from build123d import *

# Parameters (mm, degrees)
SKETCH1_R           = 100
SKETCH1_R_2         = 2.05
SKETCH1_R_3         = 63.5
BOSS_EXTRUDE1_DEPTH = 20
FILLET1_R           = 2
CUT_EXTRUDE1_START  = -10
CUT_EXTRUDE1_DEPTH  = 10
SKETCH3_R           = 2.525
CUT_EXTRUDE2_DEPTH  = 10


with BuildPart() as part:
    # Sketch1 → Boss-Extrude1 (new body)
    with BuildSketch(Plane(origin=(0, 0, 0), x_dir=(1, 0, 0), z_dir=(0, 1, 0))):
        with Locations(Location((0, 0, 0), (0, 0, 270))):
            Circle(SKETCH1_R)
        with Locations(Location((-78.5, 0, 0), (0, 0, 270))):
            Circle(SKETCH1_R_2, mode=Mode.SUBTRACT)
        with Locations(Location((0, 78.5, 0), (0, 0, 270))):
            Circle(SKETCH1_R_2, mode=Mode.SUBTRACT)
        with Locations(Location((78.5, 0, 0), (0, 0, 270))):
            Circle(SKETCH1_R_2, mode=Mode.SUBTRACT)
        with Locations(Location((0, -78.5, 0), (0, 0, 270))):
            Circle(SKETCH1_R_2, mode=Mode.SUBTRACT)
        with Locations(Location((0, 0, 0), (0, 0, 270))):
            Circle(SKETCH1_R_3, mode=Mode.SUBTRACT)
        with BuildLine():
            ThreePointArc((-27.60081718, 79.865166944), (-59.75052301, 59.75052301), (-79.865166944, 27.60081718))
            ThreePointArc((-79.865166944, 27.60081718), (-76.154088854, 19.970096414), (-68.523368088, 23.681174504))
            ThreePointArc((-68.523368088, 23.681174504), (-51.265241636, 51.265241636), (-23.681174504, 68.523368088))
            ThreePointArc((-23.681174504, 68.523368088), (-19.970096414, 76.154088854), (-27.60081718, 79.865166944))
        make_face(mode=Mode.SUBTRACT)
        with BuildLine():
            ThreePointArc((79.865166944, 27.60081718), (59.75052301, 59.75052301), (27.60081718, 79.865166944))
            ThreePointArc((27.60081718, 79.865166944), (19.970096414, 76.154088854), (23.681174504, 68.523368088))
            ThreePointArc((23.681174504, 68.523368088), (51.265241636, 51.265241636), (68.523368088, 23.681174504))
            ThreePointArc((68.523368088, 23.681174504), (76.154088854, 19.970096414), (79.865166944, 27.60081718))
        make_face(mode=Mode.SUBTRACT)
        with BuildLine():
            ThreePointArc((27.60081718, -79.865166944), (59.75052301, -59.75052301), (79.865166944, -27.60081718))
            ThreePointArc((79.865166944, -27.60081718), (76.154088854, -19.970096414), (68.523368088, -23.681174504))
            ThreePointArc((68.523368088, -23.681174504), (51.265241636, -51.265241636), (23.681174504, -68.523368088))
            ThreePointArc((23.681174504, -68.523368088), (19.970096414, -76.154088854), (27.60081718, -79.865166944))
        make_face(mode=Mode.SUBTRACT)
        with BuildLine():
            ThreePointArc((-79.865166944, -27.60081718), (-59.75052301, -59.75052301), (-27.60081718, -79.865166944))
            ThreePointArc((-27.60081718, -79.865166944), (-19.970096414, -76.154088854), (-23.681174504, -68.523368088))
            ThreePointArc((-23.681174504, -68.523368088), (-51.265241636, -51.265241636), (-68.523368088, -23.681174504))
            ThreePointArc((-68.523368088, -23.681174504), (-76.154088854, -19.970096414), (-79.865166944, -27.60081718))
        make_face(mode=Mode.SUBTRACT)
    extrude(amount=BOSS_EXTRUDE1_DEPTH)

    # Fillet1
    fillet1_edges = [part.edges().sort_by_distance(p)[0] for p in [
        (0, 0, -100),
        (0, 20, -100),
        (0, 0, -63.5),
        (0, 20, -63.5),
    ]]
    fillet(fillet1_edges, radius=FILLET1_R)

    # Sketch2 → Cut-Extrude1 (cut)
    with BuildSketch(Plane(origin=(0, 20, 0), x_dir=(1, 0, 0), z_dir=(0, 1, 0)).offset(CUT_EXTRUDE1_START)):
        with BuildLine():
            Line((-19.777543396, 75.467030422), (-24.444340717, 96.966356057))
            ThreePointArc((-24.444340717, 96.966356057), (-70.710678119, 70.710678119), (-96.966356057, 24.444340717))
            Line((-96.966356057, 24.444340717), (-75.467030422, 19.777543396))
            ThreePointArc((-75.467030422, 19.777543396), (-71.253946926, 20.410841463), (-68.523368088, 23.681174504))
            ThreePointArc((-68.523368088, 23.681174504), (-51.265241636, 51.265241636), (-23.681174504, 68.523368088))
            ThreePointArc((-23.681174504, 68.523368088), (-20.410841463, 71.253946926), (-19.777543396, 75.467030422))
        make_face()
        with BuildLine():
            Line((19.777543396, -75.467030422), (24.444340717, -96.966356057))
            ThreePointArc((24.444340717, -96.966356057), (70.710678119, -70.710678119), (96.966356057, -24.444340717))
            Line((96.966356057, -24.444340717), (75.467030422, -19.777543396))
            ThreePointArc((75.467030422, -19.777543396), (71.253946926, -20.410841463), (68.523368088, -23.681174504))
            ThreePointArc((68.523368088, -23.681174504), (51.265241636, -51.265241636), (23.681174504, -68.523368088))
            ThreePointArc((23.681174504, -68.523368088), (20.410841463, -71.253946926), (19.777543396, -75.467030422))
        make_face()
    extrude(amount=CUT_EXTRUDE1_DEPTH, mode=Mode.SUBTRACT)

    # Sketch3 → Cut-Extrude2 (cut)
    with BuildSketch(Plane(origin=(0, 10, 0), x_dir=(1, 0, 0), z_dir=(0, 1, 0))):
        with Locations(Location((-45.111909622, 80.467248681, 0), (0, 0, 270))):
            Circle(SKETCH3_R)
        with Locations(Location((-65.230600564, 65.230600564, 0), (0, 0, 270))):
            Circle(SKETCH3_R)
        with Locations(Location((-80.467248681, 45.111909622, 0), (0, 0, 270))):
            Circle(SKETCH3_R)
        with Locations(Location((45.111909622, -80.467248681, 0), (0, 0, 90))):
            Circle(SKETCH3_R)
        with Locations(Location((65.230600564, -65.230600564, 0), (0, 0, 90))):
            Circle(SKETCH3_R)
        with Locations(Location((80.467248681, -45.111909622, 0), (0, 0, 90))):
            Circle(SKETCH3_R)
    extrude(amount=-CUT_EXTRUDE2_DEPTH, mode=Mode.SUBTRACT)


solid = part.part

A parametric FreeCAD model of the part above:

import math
import FreeCAD as App
import Part
import Sketcher

V = App.Vector
Q = App.Units.Quantity


def edges_at(feature, points):
    """Names of the edges that pass closest to the given points."""
    edges = feature.Shape.Edges
    near = lambda p: min(range(len(edges)), key=lambda i: edges[i].distToShape(Part.Vertex(*p))[0])
    return sorted({f"Edge{near(p) + 1}" for p in points})

doc = App.newDocument("Part")
params = doc.addObject("Spreadsheet::Sheet", "Params")
for row, (alias, value) in enumerate([
    ("sketch1_diameter", "200 mm"),
    ("sketch1_diameter2", "127 mm"),
    ("sketch1_radius", "6 mm"),
    ("sketch1_diameter3", "4.1 mm"),
    ("sketch1_radius2", "84.5 mm"),
    ("pad1_length", "20 mm"),
    ("fillet_radius", "2 mm"),
    ("sketch2_radius", "100 mm"),
    ("sketch2_radius2", "6 mm"),
    ("sketch2_radius3", "6 mm"),
    ("sketch2_radius4", "100 mm"),
    ("sketch2_radius5", "6 mm"),
    ("pocket1_length", "10 mm"),
    ("sketch3_diameter", "5.05 mm"),
    ("pocket2_length", "10 mm"),
], start=1):
    params.set(f"A{row}", alias)
    params.set(f"B{row}", "=" + value)
    params.setAlias(f"B{row}", alias)

body = doc.addObject("PartDesign::Body", "Body")

sketch1 = body.newObject("Sketcher::SketchObject", "Sketch")
sketch1.AttachmentSupport = (doc.getObject("XZ_Plane"), [""])
sketch1.MapMode = "FlatFace"
sketch1.addGeometry([
    Part.Circle(V(0, 0, 0), V(0, 0, 1), 100),
    Part.ArcOfCircle(Part.Circle(V(0, 0, 0), V(0, 0, 1), 84.5), math.radians(-160.935225), math.radians(-109.064775)),
    Part.ArcOfCircle(Part.Circle(V(-25.640996, -74.194268, 0), V(0, 0, 1), 6), math.radians(-109.064775), math.radians(70.935225)),
    Part.ArcOfCircle(Part.Circle(V(0, 0, 0), V(0, 0, 1), 72.5), math.radians(-160.935225), math.radians(-109.064775)),
    Part.ArcOfCircle(Part.Circle(V(-74.194268, -25.640996, 0), V(0, 0, 1), 6), math.radians(19.064775), math.radians(199.064775)),
    Part.Circle(V(0, -78.5, 0), V(0, 0, 1), 2.05),
    Part.Circle(V(-78.5, 0, 0), V(0, 0, 1), 2.05),
    Part.ArcOfCircle(Part.Circle(V(0, 0, 0), V(0, 0, 1), 84.5), math.radians(109.064775), math.radians(160.935225)),
    Part.ArcOfCircle(Part.Circle(V(-74.194268, 25.640996, 0), V(0, 0, 1), 6), math.radians(160.935225), math.radians(340.935225)),
    Part.ArcOfCircle(Part.Circle(V(0, 0, 0), V(0, 0, 1), 72.5), math.radians(109.064775), math.radians(160.935225)),
    Part.ArcOfCircle(Part.Circle(V(-25.640996, 74.194268, 0), V(0, 0, 1), 6), math.radians(-70.935225), math.radians(109.064775)),
    Part.Circle(V(0, 0, 0), V(0, 0, 1), 63.5),
    Part.ArcOfCircle(Part.Circle(V(0, 0, 0), V(0, 0, 1), 84.5), math.radians(-70.935225), math.radians(-19.064775)),
    Part.ArcOfCircle(Part.Circle(V(74.194268, -25.640996, 0), V(0, 0, 1), 6), math.radians(-19.064775), math.radians(160.935225)),
    Part.ArcOfCircle(Part.Circle(V(0, 0, 0), V(0, 0, 1), 72.5), math.radians(-70.935225), math.radians(-19.064775)),
    Part.ArcOfCircle(Part.Circle(V(25.640996, -74.194268, 0), V(0, 0, 1), 6), math.radians(109.064775), math.radians(289.064775)),
    Part.Circle(V(78.5, 0, 0), V(0, 0, 1), 2.05),
    Part.Circle(V(0, 78.5, 0), V(0, 0, 1), 2.05),
    Part.ArcOfCircle(Part.Circle(V(0, 0, 0), V(0, 0, 1), 84.5), math.radians(19.064775), math.radians(70.935225)),
    Part.ArcOfCircle(Part.Circle(V(25.640996, 74.194268, 0), V(0, 0, 1), 6), math.radians(70.935225), math.radians(250.935225)),
    Part.ArcOfCircle(Part.Circle(V(0, 0, 0), V(0, 0, 1), 72.5), math.radians(19.064775), math.radians(70.935225)),
    Part.ArcOfCircle(Part.Circle(V(74.194268, 25.640996, 0), V(0, 0, 1), 6), math.radians(-160.935225), math.radians(19.064775)),
], False)
sketch1.addConstraint([
    Sketcher.Constraint("Tangent", 1, 2, 2, 1),
    Sketcher.Constraint("Tangent", 2, 2, 3, 2),
    Sketcher.Constraint("Tangent", 3, 1, 4, 1),
    Sketcher.Constraint("Tangent", 4, 2, 1, 1),
    Sketcher.Constraint("Tangent", 7, 2, 8, 1),
    Sketcher.Constraint("Tangent", 8, 2, 9, 2),
    Sketcher.Constraint("Tangent", 9, 1, 10, 1),
    Sketcher.Constraint("Tangent", 10, 2, 7, 1),
    Sketcher.Constraint("Tangent", 12, 2, 13, 1),
    Sketcher.Constraint("Tangent", 13, 2, 14, 2),
    Sketcher.Constraint("Tangent", 14, 1, 15, 1),
    Sketcher.Constraint("Tangent", 15, 2, 12, 1),
    Sketcher.Constraint("Tangent", 18, 2, 19, 1),
    Sketcher.Constraint("Tangent", 19, 2, 20, 2),
    Sketcher.Constraint("Tangent", 20, 1, 21, 1),
    Sketcher.Constraint("Tangent", 21, 2, 18, 1),
    Sketcher.Constraint("Coincident", 0, 3, -1, 1),
    Sketcher.Constraint("Coincident", 1, 3, -1, 1),
    Sketcher.Constraint("Coincident", 3, 3, -1, 1),
    Sketcher.Constraint("Coincident", 7, 3, -1, 1),
    Sketcher.Constraint("Coincident", 9, 3, -1, 1),
    Sketcher.Constraint("Coincident", 11, 3, -1, 1),
    Sketcher.Constraint("Coincident", 12, 3, -1, 1),
    Sketcher.Constraint("Coincident", 14, 3, -1, 1),
    Sketcher.Constraint("Coincident", 18, 3, -1, 1),
    Sketcher.Constraint("Coincident", 20, 3, -1, 1),
    Sketcher.Constraint("Equal", 5, 6),
    Sketcher.Constraint("Equal", 1, 7),
    Sketcher.Constraint("Equal", 4, 8),
    Sketcher.Constraint("Equal", 7, 12),
    Sketcher.Constraint("Equal", 10, 13),
    Sketcher.Constraint("Equal", 6, 16),
    Sketcher.Constraint("Equal", 16, 17),
    Sketcher.Constraint("Equal", 12, 18),
    Sketcher.Constraint("Equal", 15, 19),
    Sketcher.Constraint("Symmetric", 6, 3, 16, 3, -1, 1),
    Sketcher.Constraint("Symmetric", 5, 3, 17, 3, -1, 1),
    Sketcher.Constraint("PointOnObject", 5, 3, -2),
    Sketcher.Constraint("PointOnObject", 6, 3, -1),
    Sketcher.Constraint("Horizontal", 4, 3, 13, 3),
    Sketcher.Constraint("Horizontal", 2, 3, 15, 3),
    Sketcher.Constraint("Horizontal", 10, 3, 19, 3),
    Sketcher.Constraint("Horizontal", 8, 3, 21, 3),
    Sketcher.Constraint("Vertical", 4, 3, 8, 3),
    Sketcher.Constraint("Vertical", 2, 3, 10, 3),
    Sketcher.Constraint("Diameter", 0, Q("200 mm")),
    Sketcher.Constraint("Diameter", 11, Q("127 mm")),
    Sketcher.Constraint("Radius", 2, Q("6 mm")),
    Sketcher.Constraint("Diameter", 5, Q("4.1 mm")),
    Sketcher.Constraint("Radius", 1, Q("84.5 mm")),
    Sketcher.Constraint("DistanceY", 5, 3, -1, 1, Q("78.5 mm")),
    Sketcher.Constraint("DistanceX", 6, 3, -1, 1, Q("78.5 mm")),
    Sketcher.Constraint("DistanceY", 2, 3, 2, 2, Q("5.670899 mm")),
    Sketcher.Constraint("DistanceX", 4, 2, 4, 3, Q("5.670899 mm")),
])
sketch1.setExpression("Constraints[45]", "Params.sketch1_diameter")
sketch1.setExpression("Constraints[46]", "Params.sketch1_diameter2")
sketch1.setExpression("Constraints[47]", "Params.sketch1_radius")
sketch1.setExpression("Constraints[48]", "Params.sketch1_diameter3")
sketch1.setExpression("Constraints[49]", "Params.sketch1_radius2")
pad1 = body.newObject("PartDesign::Pad", "Pad")
pad1.Profile = sketch1
pad1.setExpression("Length", "Params.pad1_length")
pad1.Reversed = True
doc.recompute()

fillet = body.newObject("PartDesign::Fillet", "Fillet")
fillet.Base = (pad1, edges_at(pad1, [
    (0, 0, -100),
    (0, 20, -100),
    (0, 0, -63.5),
    (0, 20, -63.5),
]))
fillet.setExpression("Radius", "Params.fillet_radius")

sketch2 = body.newObject("Sketcher::SketchObject", "Sketch001")
sketch2.AttachmentSupport = (doc.getObject("XZ_Plane"), [""])
sketch2.MapMode = "FlatFace"
sketch2.AttachmentOffset = App.Placement(V(0, 0, -10), App.Rotation())
sketch2.addGeometry([
    Part.LineSegment(V(-19.777543, -75.46703, 0), V(-24.444341, -96.966356, 0)),
    Part.ArcOfCircle(Part.Circle(V(0, 0, 0), V(0, 0, 1), 100), math.radians(-165.851057), math.radians(-104.148943)),
    Part.LineSegment(V(-96.966356, -24.444341, 0), V(-75.46703, -19.777543, 0)),
    Part.ArcOfCircle(Part.Circle(V(-74.194268, -25.640996, 0), V(0, 0, 1), 6), math.radians(19.064775), math.radians(102.247038)),
    Part.ArcOfCircle(Part.Circle(V(0, 0, 0), V(0, 0, 1), 72.5), math.radians(-160.935225), math.radians(-109.064775)),
    Part.ArcOfCircle(Part.Circle(V(-25.640996, -74.194268, 0), V(0, 0, 1), 6), math.radians(-12.247038), math.radians(70.935225)),
    Part.LineSegment(V(19.777543, 75.46703, 0), V(24.444341, 96.966356, 0)),
    Part.ArcOfCircle(Part.Circle(V(0, 0, 0), V(0, 0, 1), 100), math.radians(14.148943), math.radians(75.851057)),
    Part.LineSegment(V(96.966356, 24.444341, 0), V(75.46703, 19.777543, 0)),
    Part.ArcOfCircle(Part.Circle(V(74.194268, 25.640996, 0), V(0, 0, 1), 6), math.radians(-160.935225), math.radians(-77.752962)),
    Part.ArcOfCircle(Part.Circle(V(0, 0, 0), V(0, 0, 1), 72.5), math.radians(19.064775), math.radians(70.935225)),
    Part.ArcOfCircle(Part.Circle(V(25.640996, 74.194268, 0), V(0, 0, 1), 6), math.radians(167.752962), math.radians(250.935225)),
], False)
sketch2.addConstraint([
    Sketcher.Constraint("Coincident", 0, 2, 1, 2),
    Sketcher.Constraint("Coincident", 1, 1, 2, 1),
    Sketcher.Constraint("Coincident", 2, 2, 3, 2),
    Sketcher.Constraint("Coincident", 3, 1, 4, 1),
    Sketcher.Constraint("Coincident", 4, 2, 5, 2),
    Sketcher.Constraint("Coincident", 5, 1, 0, 1),
    Sketcher.Constraint("Coincident", 6, 2, 7, 2),
    Sketcher.Constraint("Coincident", 7, 1, 8, 1),
    Sketcher.Constraint("Coincident", 8, 2, 9, 2),
    Sketcher.Constraint("Coincident", 9, 1, 10, 1),
    Sketcher.Constraint("Coincident", 10, 2, 11, 2),
    Sketcher.Constraint("Coincident", 11, 1, 6, 1),
    Sketcher.Constraint("Coincident", 1, 3, -1, 1),
    Sketcher.Constraint("Coincident", 4, 3, -1, 1),
    Sketcher.Constraint("Coincident", 7, 3, -1, 1),
    Sketcher.Constraint("Coincident", 10, 3, -1, 1),
    Sketcher.Constraint("Radius", 1, Q("100 mm")),
    Sketcher.Constraint("Radius", 3, Q("6 mm")),
    Sketcher.Constraint("Radius", 5, Q("6 mm")),
    Sketcher.Constraint("Radius", 7, Q("100 mm")),
    Sketcher.Constraint("Radius", 9, Q("6 mm")),
    Sketcher.Constraint("Radius", 11, Q("6 mm")),
    Sketcher.Constraint("Radius", 4, Q("72.5 mm")),
    Sketcher.Constraint("Radius", 10, Q("72.5 mm")),
    Sketcher.Constraint("Distance", 0, Q("22 mm")),
    Sketcher.Constraint("Distance", 2, Q("22 mm")),
    Sketcher.Constraint("Distance", 6, Q("22 mm")),
    Sketcher.Constraint("Distance", 8, Q("22 mm")),
    Sketcher.Constraint("DistanceX", 3, 3, 3, 1, Q("5.670899 mm")),
    Sketcher.Constraint("DistanceY", 5, 3, 4, 2, Q("5.670899 mm")),
    Sketcher.Constraint("DistanceX", 9, 1, 9, 3, Q("5.670899 mm")),
    Sketcher.Constraint("DistanceY", 10, 2, 11, 3, Q("5.670899 mm")),
    Sketcher.Constraint("DistanceX", 0, 2, -1, 1, Q("24.444341 mm")),
    Sketcher.Constraint("DistanceY", 1, 1, -1, 1, Q("24.444341 mm")),
    Sketcher.Constraint("DistanceX", 2, 2, -1, 1, Q("75.46703 mm")),
    Sketcher.Constraint("DistanceY", 4, 2, -1, 1, Q("68.523368 mm")),
    Sketcher.Constraint("DistanceX", -1, 1, 6, 2, Q("24.444341 mm")),
    Sketcher.Constraint("DistanceY", -1, 1, 7, 1, Q("24.444341 mm")),
    Sketcher.Constraint("DistanceX", -1, 1, 8, 2, Q("75.46703 mm")),
    Sketcher.Constraint("DistanceY", -1, 1, 10, 2, Q("68.523368 mm")),
])
sketch2.setExpression("Constraints[16]", "Params.sketch2_radius")
sketch2.setExpression("Constraints[17]", "Params.sketch2_radius2")
sketch2.setExpression("Constraints[18]", "Params.sketch2_radius3")
sketch2.setExpression("Constraints[19]", "Params.sketch2_radius4")
sketch2.setExpression("Constraints[20]", "Params.sketch2_radius5")
pocket1 = body.newObject("PartDesign::Pocket", "Pocket")
pocket1.Profile = sketch2
pocket1.setExpression("Length", "Params.pocket1_length")

sketch3 = body.newObject("Sketcher::SketchObject", "Sketch002")
sketch3.AttachmentSupport = (doc.getObject("XZ_Plane"), [""])
sketch3.MapMode = "FlatFace"
sketch3.AttachmentOffset = App.Placement(V(0, 0, -10), App.Rotation())
sketch3.addGeometry([
    Part.Circle(V(-45.11191, -80.467249, 0), V(0, 0, 1), 2.525),
    Part.Circle(V(-65.230601, -65.230601, 0), V(0, 0, 1), 2.525),
    Part.Circle(V(-80.467249, -45.11191, 0), V(0, 0, 1), 2.525),
    Part.Circle(V(45.11191, 80.467249, 0), V(0, 0, 1), 2.525),
    Part.Circle(V(65.230601, 65.230601, 0), V(0, 0, 1), 2.525),
    Part.Circle(V(80.467249, 45.11191, 0), V(0, 0, 1), 2.525),
], False)
sketch3.addConstraint([
    Sketcher.Constraint("Equal", 0, 1),
    Sketcher.Constraint("Equal", 1, 2),
    Sketcher.Constraint("Equal", 2, 3),
    Sketcher.Constraint("Equal", 3, 4),
    Sketcher.Constraint("Equal", 4, 5),
    Sketcher.Constraint("Symmetric", 0, 3, 3, 3, -1, 1),
    Sketcher.Constraint("Symmetric", 1, 3, 4, 3, -1, 1),
    Sketcher.Constraint("Symmetric", 2, 3, 5, 3, -1, 1),
    Sketcher.Constraint("Diameter", 0, Q("5.05 mm")),
    Sketcher.Constraint("DistanceX", 1, 3, -1, 1, Q("65.230601 mm")),
    Sketcher.Constraint("DistanceY", 1, 3, -1, 1, Q("65.230601 mm")),
    Sketcher.Constraint("DistanceX", 0, 3, -1, 1, Q("45.11191 mm")),
    Sketcher.Constraint("DistanceY", 0, 3, -1, 1, Q("80.467249 mm")),
    Sketcher.Constraint("DistanceX", 2, 3, -1, 1, Q("80.467249 mm")),
    Sketcher.Constraint("DistanceY", 2, 3, -1, 1, Q("45.11191 mm")),
])
sketch3.setExpression("Constraints[8]", "Params.sketch3_diameter")
pocket2 = body.newObject("PartDesign::Pocket", "Pocket001")
pocket2.Profile = sketch3
pocket2.setExpression("Length", "Params.pocket2_length")
pocket2.Reversed = True

doc.recompute()
